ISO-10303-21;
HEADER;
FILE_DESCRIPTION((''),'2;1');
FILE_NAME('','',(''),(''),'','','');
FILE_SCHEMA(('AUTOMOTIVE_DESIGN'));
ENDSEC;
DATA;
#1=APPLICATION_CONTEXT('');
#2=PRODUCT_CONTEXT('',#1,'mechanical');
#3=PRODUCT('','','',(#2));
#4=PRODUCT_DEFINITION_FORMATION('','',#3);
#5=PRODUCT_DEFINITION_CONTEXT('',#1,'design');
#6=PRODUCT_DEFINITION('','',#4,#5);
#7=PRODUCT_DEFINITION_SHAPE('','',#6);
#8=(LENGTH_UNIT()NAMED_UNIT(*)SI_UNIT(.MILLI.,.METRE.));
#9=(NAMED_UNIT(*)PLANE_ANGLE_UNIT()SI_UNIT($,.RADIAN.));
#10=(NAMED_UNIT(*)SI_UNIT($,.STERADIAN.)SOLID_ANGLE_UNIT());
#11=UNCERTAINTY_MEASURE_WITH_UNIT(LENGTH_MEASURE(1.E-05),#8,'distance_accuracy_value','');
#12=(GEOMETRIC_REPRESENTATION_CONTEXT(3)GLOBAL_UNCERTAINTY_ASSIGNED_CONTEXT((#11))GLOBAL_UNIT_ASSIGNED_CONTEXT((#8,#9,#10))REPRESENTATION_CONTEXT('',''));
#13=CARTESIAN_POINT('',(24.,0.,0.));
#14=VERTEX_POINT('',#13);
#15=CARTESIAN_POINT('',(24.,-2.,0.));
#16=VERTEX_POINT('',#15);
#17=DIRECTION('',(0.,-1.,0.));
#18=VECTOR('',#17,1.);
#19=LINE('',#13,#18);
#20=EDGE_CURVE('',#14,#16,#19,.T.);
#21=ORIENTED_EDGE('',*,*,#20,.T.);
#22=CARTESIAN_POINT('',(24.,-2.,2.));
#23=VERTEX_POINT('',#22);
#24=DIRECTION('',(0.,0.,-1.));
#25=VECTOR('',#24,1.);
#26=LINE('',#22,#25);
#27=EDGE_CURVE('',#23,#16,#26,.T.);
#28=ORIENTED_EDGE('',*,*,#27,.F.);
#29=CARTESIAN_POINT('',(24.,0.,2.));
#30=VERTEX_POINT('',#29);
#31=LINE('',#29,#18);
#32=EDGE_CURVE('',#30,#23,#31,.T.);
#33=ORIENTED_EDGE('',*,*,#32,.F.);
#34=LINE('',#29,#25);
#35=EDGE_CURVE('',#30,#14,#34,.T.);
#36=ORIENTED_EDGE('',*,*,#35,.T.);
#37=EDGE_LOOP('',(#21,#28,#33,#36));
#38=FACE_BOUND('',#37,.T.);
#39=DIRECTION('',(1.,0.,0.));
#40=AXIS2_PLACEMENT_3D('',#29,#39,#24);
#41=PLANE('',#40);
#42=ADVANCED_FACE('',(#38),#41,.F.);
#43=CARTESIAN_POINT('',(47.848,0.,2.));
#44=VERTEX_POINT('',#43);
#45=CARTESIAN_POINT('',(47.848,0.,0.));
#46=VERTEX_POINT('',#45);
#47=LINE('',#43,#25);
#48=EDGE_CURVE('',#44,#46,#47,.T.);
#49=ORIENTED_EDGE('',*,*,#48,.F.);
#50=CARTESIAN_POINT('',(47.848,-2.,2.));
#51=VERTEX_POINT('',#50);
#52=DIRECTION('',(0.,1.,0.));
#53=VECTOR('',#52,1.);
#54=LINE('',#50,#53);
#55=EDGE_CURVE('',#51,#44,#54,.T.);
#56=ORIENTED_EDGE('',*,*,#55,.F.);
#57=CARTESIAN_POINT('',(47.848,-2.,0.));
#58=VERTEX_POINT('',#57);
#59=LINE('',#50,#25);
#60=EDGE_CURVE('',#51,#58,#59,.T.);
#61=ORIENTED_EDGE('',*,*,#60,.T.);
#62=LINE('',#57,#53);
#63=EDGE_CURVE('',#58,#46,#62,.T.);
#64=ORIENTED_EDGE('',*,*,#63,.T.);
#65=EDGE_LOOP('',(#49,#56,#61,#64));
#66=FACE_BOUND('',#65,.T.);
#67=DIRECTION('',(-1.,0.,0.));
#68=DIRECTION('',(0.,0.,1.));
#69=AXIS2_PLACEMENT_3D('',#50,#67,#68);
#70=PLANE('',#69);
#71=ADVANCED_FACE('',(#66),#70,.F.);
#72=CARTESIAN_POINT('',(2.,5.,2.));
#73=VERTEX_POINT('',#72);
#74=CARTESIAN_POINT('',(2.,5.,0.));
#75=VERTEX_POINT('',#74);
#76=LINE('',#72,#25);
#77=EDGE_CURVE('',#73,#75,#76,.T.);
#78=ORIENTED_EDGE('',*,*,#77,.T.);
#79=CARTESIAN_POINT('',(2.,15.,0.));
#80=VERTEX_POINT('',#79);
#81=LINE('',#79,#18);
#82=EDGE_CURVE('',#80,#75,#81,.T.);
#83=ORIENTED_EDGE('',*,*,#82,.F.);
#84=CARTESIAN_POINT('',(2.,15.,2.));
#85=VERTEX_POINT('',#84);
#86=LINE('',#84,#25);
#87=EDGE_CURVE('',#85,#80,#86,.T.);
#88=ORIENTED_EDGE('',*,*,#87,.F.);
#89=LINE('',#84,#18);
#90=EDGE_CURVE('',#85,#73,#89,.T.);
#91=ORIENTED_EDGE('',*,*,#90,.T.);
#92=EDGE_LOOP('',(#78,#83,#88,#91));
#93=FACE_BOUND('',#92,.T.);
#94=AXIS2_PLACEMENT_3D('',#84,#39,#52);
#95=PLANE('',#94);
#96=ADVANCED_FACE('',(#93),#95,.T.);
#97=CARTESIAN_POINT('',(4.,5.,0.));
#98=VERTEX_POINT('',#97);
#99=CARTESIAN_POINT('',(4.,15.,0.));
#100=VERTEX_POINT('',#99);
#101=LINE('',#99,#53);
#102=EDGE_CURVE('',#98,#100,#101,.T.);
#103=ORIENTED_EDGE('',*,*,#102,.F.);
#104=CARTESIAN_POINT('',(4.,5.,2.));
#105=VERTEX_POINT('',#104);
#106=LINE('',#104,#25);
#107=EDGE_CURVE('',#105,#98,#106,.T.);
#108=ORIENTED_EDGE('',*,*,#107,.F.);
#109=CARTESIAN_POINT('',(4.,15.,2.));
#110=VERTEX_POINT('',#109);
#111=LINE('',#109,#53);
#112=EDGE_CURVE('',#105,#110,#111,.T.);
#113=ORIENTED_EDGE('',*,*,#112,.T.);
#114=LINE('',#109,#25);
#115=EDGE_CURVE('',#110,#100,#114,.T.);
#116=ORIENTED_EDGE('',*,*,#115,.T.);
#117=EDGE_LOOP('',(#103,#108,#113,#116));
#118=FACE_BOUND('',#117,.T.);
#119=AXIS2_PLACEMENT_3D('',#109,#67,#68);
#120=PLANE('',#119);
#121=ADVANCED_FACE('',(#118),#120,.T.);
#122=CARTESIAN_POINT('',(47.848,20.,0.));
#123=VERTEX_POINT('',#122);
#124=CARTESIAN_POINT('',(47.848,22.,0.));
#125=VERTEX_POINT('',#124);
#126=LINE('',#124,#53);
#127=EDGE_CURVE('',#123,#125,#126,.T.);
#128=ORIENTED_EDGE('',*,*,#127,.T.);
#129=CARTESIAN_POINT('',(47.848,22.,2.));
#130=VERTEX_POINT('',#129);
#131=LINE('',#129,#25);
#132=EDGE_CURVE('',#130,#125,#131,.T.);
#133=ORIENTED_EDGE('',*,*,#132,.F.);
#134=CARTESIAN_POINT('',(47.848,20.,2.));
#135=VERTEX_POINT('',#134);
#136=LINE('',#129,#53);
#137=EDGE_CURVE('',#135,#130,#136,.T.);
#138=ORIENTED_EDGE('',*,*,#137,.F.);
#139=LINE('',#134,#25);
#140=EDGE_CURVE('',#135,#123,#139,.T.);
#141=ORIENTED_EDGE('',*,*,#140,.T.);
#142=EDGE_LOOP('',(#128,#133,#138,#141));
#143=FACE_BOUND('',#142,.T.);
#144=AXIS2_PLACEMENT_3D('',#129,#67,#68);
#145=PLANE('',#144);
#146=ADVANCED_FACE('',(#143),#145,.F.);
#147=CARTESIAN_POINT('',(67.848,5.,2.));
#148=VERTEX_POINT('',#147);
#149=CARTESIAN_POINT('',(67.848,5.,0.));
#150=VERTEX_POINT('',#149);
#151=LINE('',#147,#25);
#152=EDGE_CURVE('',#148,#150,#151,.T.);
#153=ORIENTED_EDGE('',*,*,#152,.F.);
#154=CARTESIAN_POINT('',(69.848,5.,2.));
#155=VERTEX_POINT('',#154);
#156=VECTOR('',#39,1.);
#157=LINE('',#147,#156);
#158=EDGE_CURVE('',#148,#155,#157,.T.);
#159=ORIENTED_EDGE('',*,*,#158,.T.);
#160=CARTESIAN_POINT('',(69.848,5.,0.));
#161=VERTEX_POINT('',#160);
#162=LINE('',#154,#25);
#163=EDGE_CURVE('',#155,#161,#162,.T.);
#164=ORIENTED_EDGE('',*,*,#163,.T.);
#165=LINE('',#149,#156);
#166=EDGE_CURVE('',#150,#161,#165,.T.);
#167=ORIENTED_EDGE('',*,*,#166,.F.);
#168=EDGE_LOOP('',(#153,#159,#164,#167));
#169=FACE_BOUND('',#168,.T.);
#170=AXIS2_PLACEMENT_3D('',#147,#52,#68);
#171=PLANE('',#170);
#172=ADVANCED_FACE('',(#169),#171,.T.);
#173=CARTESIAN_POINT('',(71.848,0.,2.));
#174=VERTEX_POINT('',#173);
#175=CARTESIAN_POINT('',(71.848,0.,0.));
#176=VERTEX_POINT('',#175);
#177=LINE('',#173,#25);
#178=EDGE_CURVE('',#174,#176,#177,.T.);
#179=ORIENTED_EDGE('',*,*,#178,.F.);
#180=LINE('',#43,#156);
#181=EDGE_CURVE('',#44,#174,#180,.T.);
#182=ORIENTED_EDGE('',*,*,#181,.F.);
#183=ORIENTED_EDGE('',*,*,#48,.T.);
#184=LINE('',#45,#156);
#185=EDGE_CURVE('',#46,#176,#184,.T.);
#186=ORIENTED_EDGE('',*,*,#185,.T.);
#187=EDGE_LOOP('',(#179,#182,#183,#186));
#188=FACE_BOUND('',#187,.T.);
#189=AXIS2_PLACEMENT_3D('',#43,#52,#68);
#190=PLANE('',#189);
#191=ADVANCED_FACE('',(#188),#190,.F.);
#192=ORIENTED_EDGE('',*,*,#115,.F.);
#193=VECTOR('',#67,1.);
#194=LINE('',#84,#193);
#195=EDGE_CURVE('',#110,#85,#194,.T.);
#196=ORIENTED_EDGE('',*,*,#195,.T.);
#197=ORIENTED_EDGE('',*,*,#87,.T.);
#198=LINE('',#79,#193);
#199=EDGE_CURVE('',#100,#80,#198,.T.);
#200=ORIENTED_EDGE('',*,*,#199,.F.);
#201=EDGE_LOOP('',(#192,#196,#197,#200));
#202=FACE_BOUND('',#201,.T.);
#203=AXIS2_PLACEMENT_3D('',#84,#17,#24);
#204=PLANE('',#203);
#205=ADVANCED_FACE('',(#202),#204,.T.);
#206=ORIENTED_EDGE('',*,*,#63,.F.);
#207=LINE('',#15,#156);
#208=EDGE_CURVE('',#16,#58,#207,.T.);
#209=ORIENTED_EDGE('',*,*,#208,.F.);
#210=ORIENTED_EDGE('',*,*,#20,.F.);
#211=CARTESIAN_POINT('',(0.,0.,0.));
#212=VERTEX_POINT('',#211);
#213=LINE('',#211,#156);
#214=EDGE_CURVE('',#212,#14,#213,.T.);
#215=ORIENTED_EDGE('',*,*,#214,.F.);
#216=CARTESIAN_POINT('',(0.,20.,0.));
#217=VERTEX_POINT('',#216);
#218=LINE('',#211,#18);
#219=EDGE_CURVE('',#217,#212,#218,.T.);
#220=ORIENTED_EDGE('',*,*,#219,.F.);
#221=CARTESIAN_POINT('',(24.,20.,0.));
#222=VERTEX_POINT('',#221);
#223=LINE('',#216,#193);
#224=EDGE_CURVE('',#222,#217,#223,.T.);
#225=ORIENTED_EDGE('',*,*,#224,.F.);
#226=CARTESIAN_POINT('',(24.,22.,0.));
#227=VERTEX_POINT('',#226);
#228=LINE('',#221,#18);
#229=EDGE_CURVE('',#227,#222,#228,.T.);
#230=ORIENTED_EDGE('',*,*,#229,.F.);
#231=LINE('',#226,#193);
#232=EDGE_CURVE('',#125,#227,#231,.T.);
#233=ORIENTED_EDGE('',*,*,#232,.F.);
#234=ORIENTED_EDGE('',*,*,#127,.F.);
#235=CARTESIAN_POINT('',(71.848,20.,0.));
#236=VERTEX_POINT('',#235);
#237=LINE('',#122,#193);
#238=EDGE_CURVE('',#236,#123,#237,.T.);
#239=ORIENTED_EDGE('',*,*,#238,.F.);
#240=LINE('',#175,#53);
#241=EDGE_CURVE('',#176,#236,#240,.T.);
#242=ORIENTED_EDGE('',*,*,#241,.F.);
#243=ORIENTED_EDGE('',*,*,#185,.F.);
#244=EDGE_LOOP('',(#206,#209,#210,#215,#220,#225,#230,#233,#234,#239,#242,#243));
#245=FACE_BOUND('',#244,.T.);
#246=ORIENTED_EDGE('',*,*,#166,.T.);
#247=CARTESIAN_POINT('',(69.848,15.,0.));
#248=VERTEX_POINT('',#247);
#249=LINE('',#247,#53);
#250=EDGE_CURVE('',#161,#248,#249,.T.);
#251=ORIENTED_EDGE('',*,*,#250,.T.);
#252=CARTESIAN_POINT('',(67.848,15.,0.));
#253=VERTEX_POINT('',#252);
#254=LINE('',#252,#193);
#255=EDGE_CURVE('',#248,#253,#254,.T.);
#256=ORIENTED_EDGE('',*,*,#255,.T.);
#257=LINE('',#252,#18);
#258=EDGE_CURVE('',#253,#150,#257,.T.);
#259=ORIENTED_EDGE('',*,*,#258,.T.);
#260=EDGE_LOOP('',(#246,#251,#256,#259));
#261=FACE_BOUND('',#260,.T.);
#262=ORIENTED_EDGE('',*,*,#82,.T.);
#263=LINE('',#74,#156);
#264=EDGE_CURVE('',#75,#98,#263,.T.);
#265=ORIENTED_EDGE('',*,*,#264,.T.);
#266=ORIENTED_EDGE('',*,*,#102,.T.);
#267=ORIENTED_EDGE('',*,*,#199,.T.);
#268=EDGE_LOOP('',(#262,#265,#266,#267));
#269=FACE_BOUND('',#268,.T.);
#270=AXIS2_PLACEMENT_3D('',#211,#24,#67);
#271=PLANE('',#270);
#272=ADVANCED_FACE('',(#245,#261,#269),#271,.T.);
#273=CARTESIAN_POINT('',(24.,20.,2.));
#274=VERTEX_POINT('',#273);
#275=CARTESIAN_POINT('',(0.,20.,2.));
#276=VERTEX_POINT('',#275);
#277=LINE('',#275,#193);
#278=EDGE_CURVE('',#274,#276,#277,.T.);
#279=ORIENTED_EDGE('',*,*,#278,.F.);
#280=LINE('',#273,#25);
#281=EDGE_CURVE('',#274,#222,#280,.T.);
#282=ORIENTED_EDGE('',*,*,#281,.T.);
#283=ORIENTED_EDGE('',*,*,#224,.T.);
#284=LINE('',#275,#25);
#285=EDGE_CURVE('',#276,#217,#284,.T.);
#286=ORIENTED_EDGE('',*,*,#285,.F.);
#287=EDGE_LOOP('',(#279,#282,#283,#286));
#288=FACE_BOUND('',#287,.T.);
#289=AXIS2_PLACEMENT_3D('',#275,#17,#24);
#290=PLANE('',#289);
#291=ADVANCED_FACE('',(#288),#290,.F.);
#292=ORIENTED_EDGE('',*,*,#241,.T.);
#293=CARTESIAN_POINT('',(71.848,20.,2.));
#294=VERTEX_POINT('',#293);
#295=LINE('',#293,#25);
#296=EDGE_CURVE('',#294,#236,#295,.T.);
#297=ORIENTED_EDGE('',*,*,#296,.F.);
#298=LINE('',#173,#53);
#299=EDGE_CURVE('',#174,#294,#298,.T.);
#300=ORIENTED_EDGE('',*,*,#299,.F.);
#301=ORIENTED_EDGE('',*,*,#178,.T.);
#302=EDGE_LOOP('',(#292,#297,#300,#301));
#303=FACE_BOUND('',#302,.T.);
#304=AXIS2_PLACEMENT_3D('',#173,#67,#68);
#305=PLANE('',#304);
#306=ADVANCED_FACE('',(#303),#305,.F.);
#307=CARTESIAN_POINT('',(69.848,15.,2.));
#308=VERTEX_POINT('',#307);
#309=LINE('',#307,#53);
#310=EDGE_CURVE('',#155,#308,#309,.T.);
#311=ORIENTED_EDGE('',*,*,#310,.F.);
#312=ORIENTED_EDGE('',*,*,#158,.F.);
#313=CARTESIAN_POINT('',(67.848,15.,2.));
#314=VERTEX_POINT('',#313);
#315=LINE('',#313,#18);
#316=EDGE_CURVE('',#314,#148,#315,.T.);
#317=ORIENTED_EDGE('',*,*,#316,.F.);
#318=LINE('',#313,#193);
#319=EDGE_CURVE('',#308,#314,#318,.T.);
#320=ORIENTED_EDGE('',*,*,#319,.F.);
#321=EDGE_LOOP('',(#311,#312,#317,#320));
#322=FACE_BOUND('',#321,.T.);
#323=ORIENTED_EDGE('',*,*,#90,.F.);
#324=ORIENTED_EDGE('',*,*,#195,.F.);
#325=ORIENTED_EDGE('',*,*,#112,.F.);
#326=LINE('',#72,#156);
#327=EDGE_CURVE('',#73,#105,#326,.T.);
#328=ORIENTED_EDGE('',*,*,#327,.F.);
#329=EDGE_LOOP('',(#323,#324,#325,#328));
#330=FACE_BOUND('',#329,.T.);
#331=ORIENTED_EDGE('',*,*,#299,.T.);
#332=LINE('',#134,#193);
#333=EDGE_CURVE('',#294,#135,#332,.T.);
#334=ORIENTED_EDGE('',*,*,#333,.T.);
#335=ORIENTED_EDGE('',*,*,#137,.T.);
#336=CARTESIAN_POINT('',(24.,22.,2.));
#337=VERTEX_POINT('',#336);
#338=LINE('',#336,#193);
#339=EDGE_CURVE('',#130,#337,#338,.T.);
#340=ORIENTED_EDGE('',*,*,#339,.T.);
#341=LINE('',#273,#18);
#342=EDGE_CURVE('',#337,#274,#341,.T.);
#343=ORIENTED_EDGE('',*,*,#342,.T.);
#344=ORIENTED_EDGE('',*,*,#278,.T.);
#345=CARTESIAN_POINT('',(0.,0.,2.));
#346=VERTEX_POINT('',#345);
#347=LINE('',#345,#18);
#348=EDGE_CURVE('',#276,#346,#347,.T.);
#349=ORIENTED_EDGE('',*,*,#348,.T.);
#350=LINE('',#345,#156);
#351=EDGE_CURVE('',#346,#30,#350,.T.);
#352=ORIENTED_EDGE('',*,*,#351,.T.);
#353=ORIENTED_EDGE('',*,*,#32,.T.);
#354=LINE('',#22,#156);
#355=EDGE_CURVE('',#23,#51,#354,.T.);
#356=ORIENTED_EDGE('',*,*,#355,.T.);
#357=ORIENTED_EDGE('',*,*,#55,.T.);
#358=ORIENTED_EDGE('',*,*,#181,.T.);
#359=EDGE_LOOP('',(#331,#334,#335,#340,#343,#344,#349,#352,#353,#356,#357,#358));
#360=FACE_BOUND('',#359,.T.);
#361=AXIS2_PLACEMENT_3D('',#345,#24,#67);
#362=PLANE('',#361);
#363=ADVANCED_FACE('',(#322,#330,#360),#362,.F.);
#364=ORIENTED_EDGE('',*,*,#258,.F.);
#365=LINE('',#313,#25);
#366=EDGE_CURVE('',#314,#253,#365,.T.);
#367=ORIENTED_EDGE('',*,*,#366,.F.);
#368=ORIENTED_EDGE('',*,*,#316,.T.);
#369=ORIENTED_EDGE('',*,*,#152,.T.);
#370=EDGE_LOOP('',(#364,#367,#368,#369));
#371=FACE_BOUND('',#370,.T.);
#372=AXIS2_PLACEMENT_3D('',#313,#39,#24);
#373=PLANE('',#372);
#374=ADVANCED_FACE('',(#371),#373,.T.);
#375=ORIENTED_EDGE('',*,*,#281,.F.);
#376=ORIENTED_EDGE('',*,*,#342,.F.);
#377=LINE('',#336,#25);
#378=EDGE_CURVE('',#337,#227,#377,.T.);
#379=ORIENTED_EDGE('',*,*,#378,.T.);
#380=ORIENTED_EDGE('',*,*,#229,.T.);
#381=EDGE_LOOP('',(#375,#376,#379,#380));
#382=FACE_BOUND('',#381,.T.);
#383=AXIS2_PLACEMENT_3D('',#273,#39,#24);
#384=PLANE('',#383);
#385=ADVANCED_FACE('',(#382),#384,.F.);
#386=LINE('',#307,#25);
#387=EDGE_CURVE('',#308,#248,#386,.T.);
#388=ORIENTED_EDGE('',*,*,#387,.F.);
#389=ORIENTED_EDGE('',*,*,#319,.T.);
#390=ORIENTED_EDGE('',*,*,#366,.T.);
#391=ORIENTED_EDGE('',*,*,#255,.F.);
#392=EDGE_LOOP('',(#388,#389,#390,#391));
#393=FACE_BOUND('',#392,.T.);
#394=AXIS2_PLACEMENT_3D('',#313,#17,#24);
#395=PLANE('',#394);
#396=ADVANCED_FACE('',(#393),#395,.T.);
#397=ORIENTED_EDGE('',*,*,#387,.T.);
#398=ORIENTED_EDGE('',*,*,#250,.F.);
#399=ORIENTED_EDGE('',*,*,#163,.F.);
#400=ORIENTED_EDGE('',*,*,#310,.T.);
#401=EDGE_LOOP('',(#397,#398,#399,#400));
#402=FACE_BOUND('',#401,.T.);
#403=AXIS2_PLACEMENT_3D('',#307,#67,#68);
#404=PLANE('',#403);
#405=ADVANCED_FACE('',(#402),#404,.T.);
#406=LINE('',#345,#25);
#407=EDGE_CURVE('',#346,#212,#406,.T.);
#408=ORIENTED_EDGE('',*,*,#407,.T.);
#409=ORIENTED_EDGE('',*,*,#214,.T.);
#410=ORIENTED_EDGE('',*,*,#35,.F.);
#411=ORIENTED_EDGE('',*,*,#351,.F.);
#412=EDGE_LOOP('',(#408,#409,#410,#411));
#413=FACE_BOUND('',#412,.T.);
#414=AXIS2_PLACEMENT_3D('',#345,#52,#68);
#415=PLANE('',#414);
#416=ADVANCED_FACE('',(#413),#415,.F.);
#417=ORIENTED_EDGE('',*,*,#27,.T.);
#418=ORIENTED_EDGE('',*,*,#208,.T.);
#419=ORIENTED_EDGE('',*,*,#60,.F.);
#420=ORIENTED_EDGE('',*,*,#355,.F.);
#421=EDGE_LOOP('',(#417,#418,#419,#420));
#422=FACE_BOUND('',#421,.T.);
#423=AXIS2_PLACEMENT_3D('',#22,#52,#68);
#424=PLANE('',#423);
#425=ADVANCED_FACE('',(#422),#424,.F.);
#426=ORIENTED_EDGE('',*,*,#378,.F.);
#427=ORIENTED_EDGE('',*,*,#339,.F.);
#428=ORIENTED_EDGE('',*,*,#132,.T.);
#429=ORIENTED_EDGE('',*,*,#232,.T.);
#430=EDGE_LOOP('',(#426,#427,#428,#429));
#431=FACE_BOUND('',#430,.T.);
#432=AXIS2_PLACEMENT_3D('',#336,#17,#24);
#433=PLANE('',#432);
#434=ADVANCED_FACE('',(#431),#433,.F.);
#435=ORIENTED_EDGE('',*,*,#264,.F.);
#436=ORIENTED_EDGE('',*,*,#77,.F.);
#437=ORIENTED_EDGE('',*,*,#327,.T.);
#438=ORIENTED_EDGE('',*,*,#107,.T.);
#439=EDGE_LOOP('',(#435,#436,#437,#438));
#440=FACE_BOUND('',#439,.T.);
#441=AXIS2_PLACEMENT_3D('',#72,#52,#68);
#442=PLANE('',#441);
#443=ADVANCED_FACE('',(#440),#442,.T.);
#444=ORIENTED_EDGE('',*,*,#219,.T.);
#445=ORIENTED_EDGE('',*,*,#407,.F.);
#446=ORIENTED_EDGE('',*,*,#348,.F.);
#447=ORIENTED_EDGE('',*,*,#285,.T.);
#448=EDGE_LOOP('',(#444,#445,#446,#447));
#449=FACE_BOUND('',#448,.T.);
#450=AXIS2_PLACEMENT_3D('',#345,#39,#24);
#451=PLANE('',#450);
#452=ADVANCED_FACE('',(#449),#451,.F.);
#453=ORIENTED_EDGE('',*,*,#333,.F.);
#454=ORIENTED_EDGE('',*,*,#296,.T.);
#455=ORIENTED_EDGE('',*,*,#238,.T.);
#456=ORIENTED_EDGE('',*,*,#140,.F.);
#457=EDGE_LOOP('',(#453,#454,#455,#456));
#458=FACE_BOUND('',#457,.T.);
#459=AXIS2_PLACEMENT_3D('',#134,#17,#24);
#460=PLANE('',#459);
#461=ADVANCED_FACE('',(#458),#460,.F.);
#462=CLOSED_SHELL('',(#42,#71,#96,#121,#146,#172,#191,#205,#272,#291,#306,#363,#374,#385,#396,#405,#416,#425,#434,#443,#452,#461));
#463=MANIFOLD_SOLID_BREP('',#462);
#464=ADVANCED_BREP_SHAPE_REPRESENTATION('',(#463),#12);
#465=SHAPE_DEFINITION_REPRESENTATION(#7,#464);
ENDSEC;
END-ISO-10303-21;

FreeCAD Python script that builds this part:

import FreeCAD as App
import Part
import Sketcher
from FreeCAD import Vector
Q = App.Units.Quantity

doc = App.newDocument("Part")
body = doc.addObject("PartDesign::Body", "Body")

sketch1 = body.newObject("Sketcher::SketchObject", "Sketch")
sketch1.AttachmentSupport = (doc.getObject("XY_Plane"), [""])
sketch1.MapMode = "FlatFace"
sketch1.addGeometry(Part.LineSegment(Vector(0, 0, 0), Vector(24, 0, 0)), False)
sketch1.addGeometry(Part.LineSegment(Vector(24, 0, 0), Vector(24, -2, 0)), False)
sketch1.addGeometry(Part.LineSegment(Vector(24, -2, 0), Vector(47.848, -2, 0)), False)
sketch1.addGeometry(Part.LineSegment(Vector(47.848, -2, 0), Vector(47.848, 0, 0)), False)
sketch1.addGeometry(Part.LineSegment(Vector(47.848, 0, 0), Vector(71.848, 0, 0)), False)
sketch1.addGeometry(Part.LineSegment(Vector(71.848, 0, 0), Vector(71.848, 20, 0)), False)
sketch1.addGeometry(Part.LineSegment(Vector(71.848, 20, 0), Vector(47.848, 20, 0)), False)
sketch1.addGeometry(Part.LineSegment(Vector(47.848, 20, 0), Vector(47.848, 22, 0)), False)
sketch1.addGeometry(Part.LineSegment(Vector(47.848, 22, 0), Vector(24, 22, 0)), False)
sketch1.addGeometry(Part.LineSegment(Vector(24, 22, 0), Vector(24, 20, 0)), False)
sketch1.addGeometry(Part.LineSegment(Vector(24, 20, 0), Vector(0, 20, 0)), False)
sketch1.addGeometry(Part.LineSegment(Vector(0, 20, 0), Vector(0, 0, 0)), False)
sketch1.addGeometry(Part.LineSegment(Vector(4, 5, 0), Vector(2, 5, 0)), False)
sketch1.addGeometry(Part.LineSegment(Vector(2, 5, 0), Vector(2, 15, 0)), False)
sketch1.addGeometry(Part.LineSegment(Vector(2, 15, 0), Vector(4, 15, 0)), False)
sketch1.addGeometry(Part.LineSegment(Vector(4, 15, 0), Vector(4, 5, 0)), False)
sketch1.addGeometry(Part.LineSegment(Vector(69.848, 5, 0), Vector(67.848, 5, 0)), False)
sketch1.addGeometry(Part.LineSegment(Vector(67.848, 5, 0), Vector(67.848, 15, 0)), False)
sketch1.addGeometry(Part.LineSegment(Vector(67.848, 15, 0), Vector(69.848, 15, 0)), False)
sketch1.addGeometry(Part.LineSegment(Vector(69.848, 15, 0), Vector(69.848, 5, 0)), False)
sketch1.addConstraint(Sketcher.Constraint("Coincident", 0, 2, 1, 1))
sketch1.addConstraint(Sketcher.Constraint("Coincident", 1, 2, 2, 1))
sketch1.addConstraint(Sketcher.Constraint("Coincident", 2, 2, 3, 1))
sketch1.addConstraint(Sketcher.Constraint("Coincident", 3, 2, 4, 1))
sketch1.addConstraint(Sketcher.Constraint("Coincident", 4, 2, 5, 1))
sketch1.addConstraint(Sketcher.Constraint("Coincident", 5, 2, 6, 1))
sketch1.addConstraint(Sketcher.Constraint("Coincident", 6, 2, 7, 1))
sketch1.addConstraint(Sketcher.Constraint("Coincident", 7, 2, 8, 1))
sketch1.addConstraint(Sketcher.Constraint("Coincident", 8, 2, 9, 1))
sketch1.addConstraint(Sketcher.Constraint("Coincident", 9, 2, 10, 1))
sketch1.addConstraint(Sketcher.Constraint("Coincident", 10, 2, 11, 1))
sketch1.addConstraint(Sketcher.Constraint("Coincident", 11, 2, 0, 1))
sketch1.addConstraint(Sketcher.Constraint("Coincident", 12, 2, 13, 1))
sketch1.addConstraint(Sketcher.Constraint("Coincident", 13, 2, 14, 1))
sketch1.addConstraint(Sketcher.Constraint("Coincident", 14, 2, 15, 1))
sketch1.addConstraint(Sketcher.Constraint("Coincident", 15, 2, 12, 1))
sketch1.addConstraint(Sketcher.Constraint("Coincident", 16, 2, 17, 1))
sketch1.addConstraint(Sketcher.Constraint("Coincident", 17, 2, 18, 1))
sketch1.addConstraint(Sketcher.Constraint("Coincident", 18, 2, 19, 1))
sketch1.addConstraint(Sketcher.Constraint("Coincident", 19, 2, 16, 1))
sketch1.addConstraint(Sketcher.Constraint("Horizontal", 0))
sketch1.addConstraint(Sketcher.Constraint("Vertical", 1))
sketch1.addConstraint(Sketcher.Constraint("Horizontal", 2))
sketch1.addConstraint(Sketcher.Constraint("Vertical", 3))
sketch1.addConstraint(Sketcher.Constraint("Horizontal", 4))
sketch1.addConstraint(Sketcher.Constraint("Vertical", 5))
sketch1.addConstraint(Sketcher.Constraint("Horizontal", 6))
sketch1.addConstraint(Sketcher.Constraint("Vertical", 7))
sketch1.addConstraint(Sketcher.Constraint("Horizontal", 8))
sketch1.addConstraint(Sketcher.Constraint("Vertical", 9))
sketch1.addConstraint(Sketcher.Constraint("Horizontal", 10))
sketch1.addConstraint(Sketcher.Constraint("Vertical", 11))
sketch1.addConstraint(Sketcher.Constraint("Horizontal", 12))
sketch1.addConstraint(Sketcher.Constraint("Vertical", 13))
sketch1.addConstraint(Sketcher.Constraint("Horizontal", 14))
sketch1.addConstraint(Sketcher.Constraint("Vertical", 15))
sketch1.addConstraint(Sketcher.Constraint("Horizontal", 16))
sketch1.addConstraint(Sketcher.Constraint("Vertical", 17))
sketch1.addConstraint(Sketcher.Constraint("Horizontal", 18))
sketch1.addConstraint(Sketcher.Constraint("Vertical", 19))
sketch1.addConstraint(Sketcher.Constraint("Coincident", 11, 2, -1, 1))
sketch1.addConstraint(Sketcher.Constraint("PointOnObject", 3, 2, -1))
sketch1.addConstraint(Sketcher.Constraint("Horizontal", 6, 2, 9, 2))
sketch1.addConstraint(Sketcher.Constraint("Horizontal", 15, 2, 16, 2))
sketch1.addConstraint(Sketcher.Constraint("Horizontal", 14, 2, 17, 2))
sketch1.addConstraint(Sketcher.Constraint("Vertical", 3, 2, 6, 2))
sketch1.addConstraint(Sketcher.Constraint("Vertical", 1, 2, 8, 2))
sketch1.addConstraint(Sketcher.Constraint("Equal", 0, 4))
sketch1.addConstraint(Sketcher.Constraint("Equal", 14, 16))
sketch1.addConstraint(Sketcher.Constraint("Equal", 18, 1))
sketch1.addConstraint(Sketcher.Constraint("Equal", 3, 7))
sketch1.addConstraint(Sketcher.Constraint("DistanceX", 0, 1, 0, 2, Q("24 mm")))
sketch1.addConstraint(Sketcher.Constraint("DistanceX", 12, 2, 12, 1, Q("2 mm")))
sketch1.addConstraint(Sketcher.Constraint("DistanceY", 5, 1, 5, 2, Q("20 mm")))
sketch1.addConstraint(Sketcher.Constraint("DistanceY", 13, 1, 13, 2, Q("10 mm")))
sketch1.addConstraint(Sketcher.Constraint("DistanceX", -1, 1, 12, 2, Q("2 mm")))
sketch1.addConstraint(Sketcher.Constraint("DistanceY", -1, 1, 12, 2, Q("5 mm")))
sketch1.addConstraint(Sketcher.Constraint("DistanceX", 16, 2, 4, 2, Q("4 mm")))
sketch1.addConstraint(Sketcher.Constraint("DistanceX", 2, 1, 2, 2, Q("23.848 mm")))
pad1 = body.newObject("PartDesign::Pad", "Pad")
pad1.Profile = sketch1
pad1.Length = 2

doc.recompute()
